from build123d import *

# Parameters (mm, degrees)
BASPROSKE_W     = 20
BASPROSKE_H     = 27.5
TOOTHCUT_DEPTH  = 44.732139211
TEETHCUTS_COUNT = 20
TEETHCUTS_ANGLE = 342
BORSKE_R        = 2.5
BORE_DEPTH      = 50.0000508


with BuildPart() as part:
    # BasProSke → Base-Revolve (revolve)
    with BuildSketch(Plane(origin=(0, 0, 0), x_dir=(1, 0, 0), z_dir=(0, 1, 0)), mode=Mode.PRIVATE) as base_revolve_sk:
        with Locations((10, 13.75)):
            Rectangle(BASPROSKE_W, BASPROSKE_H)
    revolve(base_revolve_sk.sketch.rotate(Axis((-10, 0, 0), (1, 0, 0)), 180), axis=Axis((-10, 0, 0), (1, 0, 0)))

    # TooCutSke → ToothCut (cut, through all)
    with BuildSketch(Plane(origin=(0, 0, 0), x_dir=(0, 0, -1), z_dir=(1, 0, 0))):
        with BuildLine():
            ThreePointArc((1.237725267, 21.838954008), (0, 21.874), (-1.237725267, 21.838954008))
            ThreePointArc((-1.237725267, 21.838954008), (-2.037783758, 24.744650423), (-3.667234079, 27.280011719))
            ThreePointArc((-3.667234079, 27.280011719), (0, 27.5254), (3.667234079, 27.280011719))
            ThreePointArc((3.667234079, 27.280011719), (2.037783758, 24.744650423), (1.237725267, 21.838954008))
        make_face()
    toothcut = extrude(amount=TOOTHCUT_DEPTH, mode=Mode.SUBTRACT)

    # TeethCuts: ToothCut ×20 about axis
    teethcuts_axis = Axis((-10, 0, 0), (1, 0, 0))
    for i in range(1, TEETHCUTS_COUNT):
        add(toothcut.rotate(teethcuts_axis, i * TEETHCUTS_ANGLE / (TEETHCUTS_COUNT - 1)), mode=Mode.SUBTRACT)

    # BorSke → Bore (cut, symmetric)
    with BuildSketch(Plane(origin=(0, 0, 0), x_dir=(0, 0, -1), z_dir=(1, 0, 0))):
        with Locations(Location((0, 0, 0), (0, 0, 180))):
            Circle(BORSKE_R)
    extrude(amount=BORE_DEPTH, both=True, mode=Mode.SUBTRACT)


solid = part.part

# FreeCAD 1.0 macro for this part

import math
import FreeCAD as App
import Part
import Sketcher

doc = App.newDocument("Part")
body = doc.addObject("PartDesign::Body", "Body")

sketch1 = doc.addObject("Sketcher::SketchObject", "Sketch")
body.addObject(sketch1)
sketch1.AttachmentSupport = (doc.XZ_Plane, [""])
sketch1.MapMode = "FlatFace"
sketch1.addGeometry(Part.LineSegment(App.Vector(0, -27.5, 0), App.Vector(0, 0, 0)), False)
sketch1.addGeometry(Part.LineSegment(App.Vector(0, 0, 0), App.Vector(20, 0, 0)), False)
sketch1.addGeometry(Part.LineSegment(App.Vector(20, 0, 0), App.Vector(20, -27.5, 0)), False)
sketch1.addGeometry(Part.LineSegment(App.Vector(20, -27.5, 0), App.Vector(0, -27.5, 0)), False)
sketch1.addConstraint(Sketcher.Constraint("Coincident", 0, 2, 1, 1))
sketch1.addConstraint(Sketcher.Constraint("Coincident", 1, 2, 2, 1))
sketch1.addConstraint(Sketcher.Constraint("Coincident", 2, 2, 3, 1))
sketch1.addConstraint(Sketcher.Constraint("Coincident", 3, 2, 0, 1))
sketch1.addConstraint(Sketcher.Constraint("Vertical", 0))
sketch1.addConstraint(Sketcher.Constraint("Horizontal", 1))
sketch1.addConstraint(Sketcher.Constraint("Vertical", 2))
sketch1.addConstraint(Sketcher.Constraint("Horizontal", 3))
sketch1.addConstraint(Sketcher.Constraint("Coincident", 0, 2, -1, 1))
sketch1.addConstraint(Sketcher.Constraint("DistanceX", 1, 1, 1, 2, 20.0))
sketch1.addConstraint(Sketcher.Constraint("DistanceY", 0, 1, 0, 2, 27.5))
revolution = doc.addObject("PartDesign::Revolution", "Revolution")
body.addObject(revolution)
revolution.Profile = sketch1
revolution.ReferenceAxis = (sketch1, ["H_Axis"])
revolution.Angle = 360

sketch2 = doc.addObject("Sketcher::SketchObject", "Sketch001")
body.addObject(sketch2)
sketch2.AttachmentSupport = (doc.YZ_Plane, [""])
sketch2.MapMode = "FlatFace"
sketch2.addGeometry(Part.ArcOfCircle(Part.Circle(App.Vector(0, 0, 0), App.Vector(0, 0, 1), 21.874), math.radians(-3.243775), math.radians(3.243775)), False)
sketch2.addGeometry(Part.ArcOfCircle(Part.Circle(App.Vector(20.667491, -11.168872, 0), App.Vector(0, 0, 1), 10), math.radians(48.604568), math.radians(83.272565)), False)
sketch2.addGeometry(Part.ArcOfCircle(Part.Circle(App.Vector(0, 0, 0), App.Vector(0, 0, 1), 27.5254), math.radians(-7.656334), math.radians(7.656334)), False)
sketch2.addGeometry(Part.ArcOfCircle(Part.Circle(App.Vector(20.667491, 11.168872, 0), App.Vector(0, 0, 1), 10), math.radians(-83.272565), math.radians(-48.604568)), False)
sketch2.addConstraint(Sketcher.Constraint("Coincident", 0, 1, 1, 2))
sketch2.addConstraint(Sketcher.Constraint("Coincident", 1, 1, 2, 1))
sketch2.addConstraint(Sketcher.Constraint("Coincident", 2, 2, 3, 2))
sketch2.addConstraint(Sketcher.Constraint("Coincident", 3, 1, 0, 2))
sketch2.addConstraint(Sketcher.Constraint("Coincident", 0, 3, -1, 1))
sketch2.addConstraint(Sketcher.Constraint("Coincident", 2, 3, -1, 1))
sketch2.addConstraint(Sketcher.Constraint("Equal", 1, 3))
sketch2.addConstraint(Sketcher.Constraint("Symmetric", 1, 3, 3, 3, -1))
sketch2.addConstraint(Sketcher.Constraint("Radius", 1, 10.0))
sketch2.addConstraint(Sketcher.Constraint("Radius", 0, 21.874))
sketch2.addConstraint(Sketcher.Constraint("Radius", 2, 27.5254))
sketch2.addConstraint(Sketcher.Constraint("DistanceX", -1, 1, 1, 3, 20.667491))
sketch2.addConstraint(Sketcher.Constraint("DistanceY", 1, 3, -1, 1, 11.168872))
pocket1 = doc.addObject("PartDesign::Pocket", "Pocket")
body.addObject(pocket1)
pocket1.Profile = sketch2
pocket1.Type = "ThroughAll"
pocket1.Reversed = True
doc.recompute()

polarpattern = doc.addObject("PartDesign::PolarPattern", "PolarPattern")
body.addObject(polarpattern)
polarpattern.Originals = [pocket1]
polarpattern.Axis = (doc.X_Axis, [""])
polarpattern.Angle = 360
polarpattern.Occurrences = 20
body.Tip = polarpattern

sketch3 = doc.addObject("Sketcher::SketchObject", "Sketch002")
body.addObject(sketch3)
sketch3.AttachmentSupport = (doc.YZ_Plane, [""])
sketch3.MapMode = "FlatFace"
sketch3.addGeometry(Part.Circle(App.Vector(0, 0, 0), App.Vector(0, 0, 1), 2.5), False)
sketch3.addConstraint(Sketcher.Constraint("Coincident", 0, 3, -1, 1))
sketch3.addConstraint(Sketcher.Constraint("Diameter", 0, 5.0))
pocket2 = doc.addObject("PartDesign::Pocket", "Pocket001")
body.addObject(pocket2)
pocket2.Profile = sketch3
pocket2.Length = 100.000102
pocket2.Midplane = True

doc.recompute()
